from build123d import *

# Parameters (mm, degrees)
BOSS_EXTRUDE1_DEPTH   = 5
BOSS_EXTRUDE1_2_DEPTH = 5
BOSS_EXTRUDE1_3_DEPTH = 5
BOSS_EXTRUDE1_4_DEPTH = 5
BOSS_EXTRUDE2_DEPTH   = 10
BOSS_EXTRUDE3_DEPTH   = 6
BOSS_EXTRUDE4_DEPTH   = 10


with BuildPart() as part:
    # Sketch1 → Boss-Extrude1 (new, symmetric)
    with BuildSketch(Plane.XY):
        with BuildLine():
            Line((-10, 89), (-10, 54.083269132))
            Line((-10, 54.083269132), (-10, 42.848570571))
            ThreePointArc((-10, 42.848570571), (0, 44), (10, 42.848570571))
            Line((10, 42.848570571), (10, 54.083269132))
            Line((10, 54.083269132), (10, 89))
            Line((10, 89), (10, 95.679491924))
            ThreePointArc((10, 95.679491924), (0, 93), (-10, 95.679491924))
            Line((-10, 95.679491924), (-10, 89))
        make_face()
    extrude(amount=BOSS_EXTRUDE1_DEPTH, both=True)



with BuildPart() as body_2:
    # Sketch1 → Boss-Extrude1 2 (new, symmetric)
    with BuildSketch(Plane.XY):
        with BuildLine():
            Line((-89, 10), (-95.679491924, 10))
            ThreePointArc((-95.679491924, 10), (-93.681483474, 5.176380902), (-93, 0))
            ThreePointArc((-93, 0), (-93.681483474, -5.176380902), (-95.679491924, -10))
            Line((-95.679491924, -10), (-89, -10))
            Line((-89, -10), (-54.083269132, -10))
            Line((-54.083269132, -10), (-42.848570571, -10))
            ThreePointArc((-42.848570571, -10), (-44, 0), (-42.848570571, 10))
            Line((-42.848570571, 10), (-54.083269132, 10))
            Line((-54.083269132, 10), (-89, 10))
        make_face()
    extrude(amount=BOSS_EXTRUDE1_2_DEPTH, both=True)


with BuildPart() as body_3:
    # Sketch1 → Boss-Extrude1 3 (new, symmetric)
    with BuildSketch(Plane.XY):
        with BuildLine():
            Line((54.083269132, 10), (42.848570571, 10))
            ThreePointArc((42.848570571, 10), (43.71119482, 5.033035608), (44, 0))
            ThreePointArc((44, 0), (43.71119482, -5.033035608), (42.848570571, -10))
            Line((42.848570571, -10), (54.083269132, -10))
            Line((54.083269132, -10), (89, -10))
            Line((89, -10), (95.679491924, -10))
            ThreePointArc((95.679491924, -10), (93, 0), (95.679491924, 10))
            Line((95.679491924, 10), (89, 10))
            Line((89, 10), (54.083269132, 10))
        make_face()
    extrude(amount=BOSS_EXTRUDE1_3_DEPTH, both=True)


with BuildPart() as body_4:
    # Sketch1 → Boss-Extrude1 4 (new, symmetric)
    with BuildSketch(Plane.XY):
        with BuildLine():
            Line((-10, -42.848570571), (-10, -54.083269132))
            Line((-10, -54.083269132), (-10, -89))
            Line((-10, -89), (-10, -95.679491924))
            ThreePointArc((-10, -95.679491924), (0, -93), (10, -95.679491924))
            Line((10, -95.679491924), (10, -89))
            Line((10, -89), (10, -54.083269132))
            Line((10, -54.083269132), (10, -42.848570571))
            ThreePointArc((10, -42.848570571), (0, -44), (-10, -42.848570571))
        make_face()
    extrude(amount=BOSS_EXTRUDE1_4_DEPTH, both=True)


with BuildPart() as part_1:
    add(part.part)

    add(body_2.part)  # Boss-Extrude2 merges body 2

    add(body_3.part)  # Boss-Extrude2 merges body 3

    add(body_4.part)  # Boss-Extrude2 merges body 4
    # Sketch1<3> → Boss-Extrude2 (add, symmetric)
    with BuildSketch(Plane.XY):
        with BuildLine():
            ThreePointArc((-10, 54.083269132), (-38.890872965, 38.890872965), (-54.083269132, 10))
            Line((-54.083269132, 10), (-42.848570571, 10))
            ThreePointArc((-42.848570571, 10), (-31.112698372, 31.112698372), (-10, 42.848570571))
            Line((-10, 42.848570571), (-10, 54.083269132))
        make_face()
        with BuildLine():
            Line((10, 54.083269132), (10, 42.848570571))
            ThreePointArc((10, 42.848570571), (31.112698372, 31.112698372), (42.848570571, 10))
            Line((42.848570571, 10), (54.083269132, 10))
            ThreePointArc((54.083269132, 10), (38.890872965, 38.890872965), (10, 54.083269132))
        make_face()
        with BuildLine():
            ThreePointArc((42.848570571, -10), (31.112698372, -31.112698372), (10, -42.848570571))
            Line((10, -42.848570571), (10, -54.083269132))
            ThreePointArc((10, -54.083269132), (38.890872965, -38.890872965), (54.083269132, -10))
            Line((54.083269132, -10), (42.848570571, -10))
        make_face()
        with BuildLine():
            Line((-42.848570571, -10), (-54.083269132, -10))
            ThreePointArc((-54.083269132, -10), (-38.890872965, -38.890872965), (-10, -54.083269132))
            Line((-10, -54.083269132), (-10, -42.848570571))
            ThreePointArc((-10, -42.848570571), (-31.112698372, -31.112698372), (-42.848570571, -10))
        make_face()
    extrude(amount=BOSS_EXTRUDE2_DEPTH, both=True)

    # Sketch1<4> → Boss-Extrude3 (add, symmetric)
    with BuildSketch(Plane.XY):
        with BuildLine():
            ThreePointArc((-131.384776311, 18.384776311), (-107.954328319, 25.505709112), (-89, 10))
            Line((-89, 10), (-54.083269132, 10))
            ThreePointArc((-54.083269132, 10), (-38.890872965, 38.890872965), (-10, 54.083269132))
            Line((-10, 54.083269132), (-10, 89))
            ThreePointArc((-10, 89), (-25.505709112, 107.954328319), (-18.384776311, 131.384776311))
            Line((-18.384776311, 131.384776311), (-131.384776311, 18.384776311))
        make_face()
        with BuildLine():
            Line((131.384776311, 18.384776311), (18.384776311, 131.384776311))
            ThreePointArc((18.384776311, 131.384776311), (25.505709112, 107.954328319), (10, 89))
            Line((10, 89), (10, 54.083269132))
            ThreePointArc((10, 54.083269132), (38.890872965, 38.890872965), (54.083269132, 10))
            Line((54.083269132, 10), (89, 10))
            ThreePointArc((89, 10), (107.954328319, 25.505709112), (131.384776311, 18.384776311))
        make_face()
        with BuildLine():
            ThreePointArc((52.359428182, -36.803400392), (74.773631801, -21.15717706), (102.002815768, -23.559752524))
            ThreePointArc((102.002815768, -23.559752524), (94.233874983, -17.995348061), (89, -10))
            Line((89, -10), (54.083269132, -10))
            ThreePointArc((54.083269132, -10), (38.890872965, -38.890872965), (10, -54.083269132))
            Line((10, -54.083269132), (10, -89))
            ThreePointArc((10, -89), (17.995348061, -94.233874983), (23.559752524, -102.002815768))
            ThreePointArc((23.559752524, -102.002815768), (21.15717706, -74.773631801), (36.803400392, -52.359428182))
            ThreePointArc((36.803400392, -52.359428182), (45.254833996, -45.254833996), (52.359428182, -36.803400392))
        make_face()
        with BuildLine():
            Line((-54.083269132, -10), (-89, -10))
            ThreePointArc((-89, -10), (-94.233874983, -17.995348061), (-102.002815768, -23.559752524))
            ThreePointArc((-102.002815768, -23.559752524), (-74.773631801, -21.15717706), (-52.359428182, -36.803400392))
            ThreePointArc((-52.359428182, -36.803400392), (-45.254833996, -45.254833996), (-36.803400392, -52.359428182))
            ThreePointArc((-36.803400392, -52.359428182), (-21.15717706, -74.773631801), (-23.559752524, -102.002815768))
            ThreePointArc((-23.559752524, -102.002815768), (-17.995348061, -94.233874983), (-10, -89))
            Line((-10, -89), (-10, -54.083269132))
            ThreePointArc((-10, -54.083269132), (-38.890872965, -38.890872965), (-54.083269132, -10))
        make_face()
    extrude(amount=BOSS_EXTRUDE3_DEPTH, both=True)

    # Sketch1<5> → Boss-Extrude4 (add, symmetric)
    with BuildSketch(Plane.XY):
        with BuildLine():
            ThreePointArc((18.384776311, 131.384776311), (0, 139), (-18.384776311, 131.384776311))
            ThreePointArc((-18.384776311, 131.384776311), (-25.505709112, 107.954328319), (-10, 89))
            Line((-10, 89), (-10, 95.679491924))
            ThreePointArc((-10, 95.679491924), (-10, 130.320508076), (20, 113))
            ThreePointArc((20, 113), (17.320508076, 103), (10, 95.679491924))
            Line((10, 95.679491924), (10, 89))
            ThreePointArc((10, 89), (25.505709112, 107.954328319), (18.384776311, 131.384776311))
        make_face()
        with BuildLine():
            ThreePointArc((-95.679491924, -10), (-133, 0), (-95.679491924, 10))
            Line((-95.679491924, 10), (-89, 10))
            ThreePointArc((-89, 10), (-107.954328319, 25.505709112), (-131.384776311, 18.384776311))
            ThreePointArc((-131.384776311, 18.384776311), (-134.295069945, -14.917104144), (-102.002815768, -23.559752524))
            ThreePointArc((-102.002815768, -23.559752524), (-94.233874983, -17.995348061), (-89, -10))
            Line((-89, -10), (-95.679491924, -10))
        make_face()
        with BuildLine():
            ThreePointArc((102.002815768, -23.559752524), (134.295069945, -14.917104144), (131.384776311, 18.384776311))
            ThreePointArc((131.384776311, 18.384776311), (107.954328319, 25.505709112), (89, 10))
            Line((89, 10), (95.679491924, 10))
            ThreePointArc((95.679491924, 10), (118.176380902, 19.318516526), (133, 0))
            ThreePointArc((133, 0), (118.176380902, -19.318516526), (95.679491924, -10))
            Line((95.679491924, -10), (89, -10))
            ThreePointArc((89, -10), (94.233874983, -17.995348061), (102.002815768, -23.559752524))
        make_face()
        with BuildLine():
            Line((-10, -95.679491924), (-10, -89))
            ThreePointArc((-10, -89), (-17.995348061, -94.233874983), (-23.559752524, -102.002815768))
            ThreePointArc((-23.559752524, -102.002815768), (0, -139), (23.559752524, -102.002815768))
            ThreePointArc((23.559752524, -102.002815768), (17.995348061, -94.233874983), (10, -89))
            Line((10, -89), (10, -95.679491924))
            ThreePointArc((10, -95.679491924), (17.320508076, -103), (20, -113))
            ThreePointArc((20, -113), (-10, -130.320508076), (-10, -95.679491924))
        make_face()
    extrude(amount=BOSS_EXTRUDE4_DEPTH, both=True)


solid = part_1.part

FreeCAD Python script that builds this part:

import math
import FreeCAD as App
import Part
import Sketcher
from FreeCAD import Vector
Q = App.Units.Quantity

doc = App.newDocument("Part")
body = doc.addObject("PartDesign::Body", "Body")

sketch1 = body.newObject("Sketcher::SketchObject", "Sketch")
sketch1.AttachmentSupport = (doc.getObject("XY_Plane"), [""])
sketch1.MapMode = "FlatFace"
sketch1.addGeometry([
    Part.ArcOfCircle(Part.Circle(Vector(0, 0, 0), Vector(0, 0, 1), 44), math.radians(77), math.radians(103)),
    Part.LineSegment(Vector(10, 43, 0), Vector(10, 96, 0)),
    Part.ArcOfCircle(Part.Circle(Vector(0, 113, 0), Vector(0, 0, 1), 20), math.radians(-120), math.radians(-60)),
    Part.LineSegment(Vector(-10, 96, 0), Vector(-10, 43, 0)),
], False)
sketch1.addConstraint([
    Sketcher.Constraint("Coincident", 0, 1, 1, 1),
    Sketcher.Constraint("Coincident", 1, 2, 2, 2),
    Sketcher.Constraint("Coincident", 2, 1, 3, 1),
    Sketcher.Constraint("Coincident", 3, 2, 0, 2),
    Sketcher.Constraint("Vertical", 1),
    Sketcher.Constraint("Vertical", 3),
    Sketcher.Constraint("Coincident", 0, 3, -1, 1),
    Sketcher.Constraint("Symmetric", 1, 2, 2, 1, -2),
    Sketcher.Constraint("Radius", 0, Q("44 mm")),
    Sketcher.Constraint("Radius", 2, Q("20 mm")),
    Sketcher.Constraint("DistanceY", -1, 1, 2, 3, Q("113 mm")),
    Sketcher.Constraint("DistanceX", -1, 1, 0, 1, Q("10 mm")),
])
pad1 = body.newObject("PartDesign::Pad", "Pad")
pad1.Profile = sketch1
pad1.Length = 10
pad1.Midplane = True
body2 = doc.addObject("PartDesign::Body", "Body001")

sketch2 = body2.newObject("Sketcher::SketchObject", "Sketch001")
sketch2.AttachmentSupport = (doc.getObject("XY_Plane001"), [""])
sketch2.MapMode = "FlatFace"
sketch2.addGeometry([
    Part.ArcOfCircle(Part.Circle(Vector(-113, 0, 0), Vector(0, 0, 1), 20), math.radians(0), math.radians(30)),
    Part.ArcOfCircle(Part.Circle(Vector(-113, 0, 0), Vector(0, 0, 1), 20), math.radians(-30), math.radians(0)),
    Part.LineSegment(Vector(-96, -10, 0), Vector(-43, -10, 0)),
    Part.ArcOfCircle(Part.Circle(Vector(0, 0, 0), Vector(0, 0, 1), 44), math.radians(167), math.radians(193)),
    Part.LineSegment(Vector(-43, 10, 0), Vector(-96, 10, 0)),
], False)
sketch2.addConstraint([
    Sketcher.Constraint("Tangent", 0, 1, 1, 2),
    Sketcher.Constraint("Coincident", 1, 1, 2, 1),
    Sketcher.Constraint("Coincident", 2, 2, 3, 2),
    Sketcher.Constraint("Coincident", 3, 1, 4, 1),
    Sketcher.Constraint("Coincident", 4, 2, 0, 2),
    Sketcher.Constraint("Horizontal", 2),
    Sketcher.Constraint("Horizontal", 4),
    Sketcher.Constraint("Coincident", 3, 3, -1, 1),
    Sketcher.Constraint("Equal", 0, 1),
    Sketcher.Constraint("Symmetric", 1, 1, 4, 2, -1),
    Sketcher.Constraint("PointOnObject", 0, 1, -1),
    Sketcher.Constraint("Radius", 0, Q("20 mm")),
    Sketcher.Constraint("Radius", 3, Q("44 mm")),
    Sketcher.Constraint("DistanceX", 0, 3, -1, 1, Q("113 mm")),
    Sketcher.Constraint("DistanceY", 1, 1, -1, 1, Q("10 mm")),
])
pad2 = body2.newObject("PartDesign::Pad", "Pad001")
pad2.Profile = sketch2
pad2.Length = 10
pad2.Midplane = True
body3 = doc.addObject("PartDesign::Body", "Body002")

sketch3 = body3.newObject("Sketcher::SketchObject", "Sketch002")
sketch3.AttachmentSupport = (doc.getObject("XY_Plane002"), [""])
sketch3.MapMode = "FlatFace"
sketch3.addGeometry([
    Part.ArcOfCircle(Part.Circle(Vector(0, 0, 0), Vector(0, 0, 1), 44), math.radians(0), math.radians(13.14)),
    Part.ArcOfCircle(Part.Circle(Vector(0, 0, 0), Vector(0, 0, 1), 44), math.radians(-13.14), math.radians(0)),
    Part.LineSegment(Vector(43, -10, 0), Vector(96, -10, 0)),
    Part.ArcOfCircle(Part.Circle(Vector(113, 0, 0), Vector(0, 0, 1), 20), math.radians(150), math.radians(210)),
    Part.LineSegment(Vector(96, 10, 0), Vector(43, 10, 0)),
], False)
sketch3.addConstraint([
    Sketcher.Constraint("Tangent", 0, 1, 1, 2),
    Sketcher.Constraint("Coincident", 1, 1, 2, 1),
    Sketcher.Constraint("Coincident", 2, 2, 3, 2),
    Sketcher.Constraint("Coincident", 3, 1, 4, 1),
    Sketcher.Constraint("Coincident", 4, 2, 0, 2),
    Sketcher.Constraint("Horizontal", 2),
    Sketcher.Constraint("Horizontal", 4),
    Sketcher.Constraint("Coincident", 0, 3, -1, 1),
    Sketcher.Constraint("Equal", 0, 1),
    Sketcher.Constraint("Symmetric", 2, 2, 3, 1, -1),
    Sketcher.Constraint("PointOnObject", 0, 1, -1),
    Sketcher.Constraint("Radius", 0, Q("44 mm")),
    Sketcher.Constraint("Radius", 3, Q("20 mm")),
    Sketcher.Constraint("DistanceX", -1, 1, 3, 3, Q("113 mm")),
    Sketcher.Constraint("DistanceY", 1, 1, -1, 1, Q("10 mm")),
])
pad3 = body3.newObject("PartDesign::Pad", "Pad002")
pad3.Profile = sketch3
pad3.Length = 10
pad3.Midplane = True
body4 = doc.addObject("PartDesign::Body", "Body003")

sketch4 = body4.newObject("Sketcher::SketchObject", "Sketch003")
sketch4.AttachmentSupport = (doc.getObject("XY_Plane003"), [""])
sketch4.MapMode = "FlatFace"
sketch4.addGeometry([
    Part.LineSegment(Vector(-10, -43, 0), Vector(-10, -96, 0)),
    Part.ArcOfCircle(Part.Circle(Vector(0, -113, 0), Vector(0, 0, 1), 20), math.radians(60), math.radians(120)),
    Part.LineSegment(Vector(10, -96, 0), Vector(10, -43, 0)),
    Part.ArcOfCircle(Part.Circle(Vector(0, 0, 0), Vector(0, 0, 1), 44), math.radians(-103), math.radians(-77)),
], False)
sketch4.addConstraint([
    Sketcher.Constraint("Coincident", 0, 2, 1, 2),
    Sketcher.Constraint("Coincident", 1, 1, 2, 1),
    Sketcher.Constraint("Coincident", 2, 2, 3, 2),
    Sketcher.Constraint("Coincident", 3, 1, 0, 1),
    Sketcher.Constraint("Vertical", 0),
    Sketcher.Constraint("Vertical", 2),
    Sketcher.Constraint("Coincident", 3, 3, -1, 1),
    Sketcher.Constraint("Symmetric", 0, 2, 1, 1, -2),
    Sketcher.Constraint("Radius", 1, Q("20 mm")),
    Sketcher.Constraint("Radius", 3, Q("44 mm")),
    Sketcher.Constraint("DistanceY", 1, 3, -1, 1, Q("113 mm")),
    Sketcher.Constraint("DistanceX", 0, 2, -1, 1, Q("10 mm")),
])
pad4 = body4.newObject("PartDesign::Pad", "Pad003")
pad4.Profile = sketch4
pad4.Length = 10
pad4.Midplane = True
body.AllowCompound = True
doc.recompute()

boolean = body.newObject("PartDesign::Boolean", "Boolean")
boolean.Type = "Fuse"
boolean.addObjects([body2])
doc.recompute()

boolean2 = body.newObject("PartDesign::Boolean", "Boolean001")
boolean2.Type = "Fuse"
boolean2.addObjects([body3])
doc.recompute()

boolean3 = body.newObject("PartDesign::Boolean", "Boolean002")
boolean3.Type = "Fuse"
boolean3.addObjects([body4])

sketch5 = body.newObject("Sketcher::SketchObject", "Sketch004")
sketch5.AttachmentSupport = (doc.getObject("XY_Plane"), [""])
sketch5.MapMode = "FlatFace"
sketch5.addGeometry([
    Part.ArcOfCircle(Part.Circle(Vector(0, 0, 0), Vector(0, 0, 1), 55), math.radians(100), math.radians(170)),
    Part.LineSegment(Vector(-54, 10, 0), Vector(-43, 10, 0)),
    Part.ArcOfCircle(Part.Circle(Vector(0, 0, 0), Vector(0, 0, 1), 44), math.radians(103), math.radians(167)),
    Part.LineSegment(Vector(-10, 43, 0), Vector(-10, 54, 0)),
    Part.LineSegment(Vector(10, 54, 0), Vector(10, 43, 0)),
    Part.ArcOfCircle(Part.Circle(Vector(0, 0, 0), Vector(0, 0, 1), 44), math.radians(13), math.radians(77)),
    Part.LineSegment(Vector(43, 10, 0), Vector(54, 10, 0)),
    Part.ArcOfCircle(Part.Circle(Vector(0, 0, 0), Vector(0, 0, 1), 55), math.radians(10), math.radians(80)),
    Part.ArcOfCircle(Part.Circle(Vector(0, 0, 0), Vector(0, 0, 1), 44), math.radians(-77), math.radians(-13)),
    Part.LineSegment(Vector(10, -43, 0), Vector(10, -54, 0)),
    Part.ArcOfCircle(Part.Circle(Vector(0, 0, 0), Vector(0, 0, 1), 55), math.radians(-80), math.radians(-10)),
    Part.LineSegment(Vector(54, -10, 0), Vector(43, -10, 0)),
    Part.LineSegment(Vector(-43, -10, 0), Vector(-54, -10, 0)),
    Part.ArcOfCircle(Part.Circle(Vector(0, 0, 0), Vector(0, 0, 1), 55), math.radians(-170), math.radians(-100)),
    Part.LineSegment(Vector(-10, -54, 0), Vector(-10, -43, 0)),
    Part.ArcOfCircle(Part.Circle(Vector(0, 0, 0), Vector(0, 0, 1), 44), math.radians(-167), math.radians(-103)),
], False)
sketch5.addConstraint([
    Sketcher.Constraint("Coincident", 0, 2, 1, 1),
    Sketcher.Constraint("Coincident", 1, 2, 2, 2),
    Sketcher.Constraint("Coincident", 2, 1, 3, 1),
    Sketcher.Constraint("Coincident", 3, 2, 0, 1),
    Sketcher.Constraint("Coincident", 4, 2, 5, 2),
    Sketcher.Constraint("Coincident", 5, 1, 6, 1),
    Sketcher.Constraint("Coincident", 6, 2, 7, 1),
    Sketcher.Constraint("Coincident", 7, 2, 4, 1),
    Sketcher.Constraint("Coincident", 8, 1, 9, 1),
    Sketcher.Constraint("Coincident", 9, 2, 10, 1),
    Sketcher.Constraint("Coincident", 10, 2, 11, 1),
    Sketcher.Constraint("Coincident", 11, 2, 8, 2),
    Sketcher.Constraint("Coincident", 12, 2, 13, 1),
    Sketcher.Constraint("Coincident", 13, 2, 14, 1),
    Sketcher.Constraint("Coincident", 14, 2, 15, 2),
    Sketcher.Constraint("Coincident", 15, 1, 12, 1),
    Sketcher.Constraint("Horizontal", 1),
    Sketcher.Constraint("Vertical", 3),
    Sketcher.Constraint("Vertical", 4),
    Sketcher.Constraint("Horizontal", 6),
    Sketcher.Constraint("Vertical", 9),
    Sketcher.Constraint("Horizontal", 11),
    Sketcher.Constraint("Horizontal", 12),
    Sketcher.Constraint("Vertical", 14),
    Sketcher.Constraint("Coincident", 0, 3, -1, 1),
    Sketcher.Constraint("Coincident", 2, 3, -1, 1),
    Sketcher.Constraint("Coincident", 5, 3, -1, 1),
    Sketcher.Constraint("Coincident", 7, 3, -1, 1),
    Sketcher.Constraint("Coincident", 8, 3, -1, 1),
    Sketcher.Constraint("Coincident", 10, 3, -1, 1),
    Sketcher.Constraint("Coincident", 13, 3, -1, 1),
    Sketcher.Constraint("Coincident", 15, 3, -1, 1),
    Sketcher.Constraint("Equal", 2, 5),
    Sketcher.Constraint("Equal", 0, 7),
    Sketcher.Constraint("Equal", 5, 8),
    Sketcher.Constraint("Equal", 7, 10),
    Sketcher.Constraint("Equal", 10, 13),
    Sketcher.Constraint("Equal", 8, 15),
    Sketcher.Constraint("Horizontal", 2, 1, 4, 2),
    Sketcher.Constraint("Horizontal", 1, 2, 5, 1),
    Sketcher.Constraint("Horizontal", 11, 2, 12, 2),
    Sketcher.Constraint("Horizontal", 9, 2, 13, 2),
    Sketcher.Constraint("Vertical", 7, 2, 8, 1),
    Sketcher.Constraint("Vertical", 6, 2, 10, 2),
    Sketcher.Constraint("Equal", 12, 3),
    Sketcher.Constraint("Radius", 0, Q("55 mm")),
    Sketcher.Constraint("Radius", 2, Q("44 mm")),
    Sketcher.Constraint("DistanceY", -1, 1, 0, 2, Q("10 mm")),
])
pad5 = body.newObject("PartDesign::Pad", "Pad004")
pad5.Profile = sketch5
pad5.Length = 20
pad5.Midplane = True

sketch6 = body.newObject("Sketcher::SketchObject", "Sketch005")
sketch6.AttachmentSupport = (doc.getObject("XY_Plane"), [""])
sketch6.MapMode = "FlatFace"
sketch6.addGeometry([
    Part.ArcOfCircle(Part.Circle(Vector(-113, 0, 0), Vector(0, 0, 1), 26), math.radians(23), math.radians(135)),
    Part.LineSegment(Vector(-89, 10, 0), Vector(-54, 10, 0)),
    Part.ArcOfCircle(Part.Circle(Vector(0, 0, 0), Vector(0, 0, 1), 55), math.radians(100), math.radians(170)),
    Part.LineSegment(Vector(-10, 54, 0), Vector(-10, 89, 0)),
    Part.ArcOfCircle(Part.Circle(Vector(0, 113, 0), Vector(0, 0, 1), 26), math.radians(135), math.radians(247)),
    Part.LineSegment(Vector(-18, 131, 0), Vector(-131, 18, 0)),
    Part.LineSegment(Vector(131, 18, 0), Vector(18, 131, 0)),
    Part.ArcOfCircle(Part.Circle(Vector(0, 113, 0), Vector(0, 0, 1), 26), math.radians(-67), math.radians(45)),
    Part.LineSegment(Vector(10, 89, 0), Vector(10, 54, 0)),
    Part.ArcOfCircle(Part.Circle(Vector(0, 0, 0), Vector(0, 0, 1), 55), math.radians(10), math.radians(80)),
    Part.LineSegment(Vector(54, 10, 0), Vector(89, 10, 0)),
    Part.ArcOfCircle(Part.Circle(Vector(113, 0, 0), Vector(0, 0, 1), 26), math.radians(45), math.radians(157)),
    Part.ArcOfCircle(Part.Circle(Vector(85, -60, 0), Vector(0, 0, 1), 40), math.radians(65), math.radians(145)),
    Part.ArcOfCircle(Part.Circle(Vector(113, 0, 0), Vector(0, 0, 1), 26), math.radians(-157), math.radians(-115)),
    Part.LineSegment(Vector(89, -10, 0), Vector(54, -10, 0)),
    Part.ArcOfCircle(Part.Circle(Vector(0, 0, 0), Vector(0, 0, 1), 55), math.radians(-80), math.radians(-10)),
    Part.LineSegment(Vector(10, -54, 0), Vector(10, -89, 0)),
    Part.ArcOfCircle(Part.Circle(Vector(0, -113, 0), Vector(0, 0, 1), 26), math.radians(25), math.radians(67)),
    Part.ArcOfCircle(Part.Circle(Vector(60, -85, 0), Vector(0, 0, 1), 40), math.radians(125), math.radians(205)),
    Part.ArcOfCircle(Part.Circle(Vector(0, 0, 0), Vector(0, 0, 1), 64), math.radians(-54.9), math.radians(-35.1)),
    Part.LineSegment(Vector(-54, -10, 0), Vector(-89, -10, 0)),
    Part.ArcOfCircle(Part.Circle(Vector(-113, 0, 0), Vector(0, 0, 1), 26), math.radians(-65), math.radians(-23)),
    Part.ArcOfCircle(Part.Circle(Vector(-85, -60, 0), Vector(0, 0, 1), 40), math.radians(35), math.radians(115)),
    Part.ArcOfCircle(Part.Circle(Vector(0, 0, 0), Vector(0, 0, 1), 64), math.radians(-144.9), math.radians(-125.1)),
    Part.ArcOfCircle(Part.Circle(Vector(-60, -85, 0), Vector(0, 0, 1), 40), math.radians(-25), math.radians(55)),
    Part.ArcOfCircle(Part.Circle(Vector(0, -113, 0), Vector(0, 0, 1), 26), math.radians(113), math.radians(155)),
    Part.LineSegment(Vector(-10, -89, 0), Vector(-10, -54, 0)),
    Part.ArcOfCircle(Part.Circle(Vector(0, 0, 0), Vector(0, 0, 1), 55), math.radians(-170), math.radians(-100)),
], False)
sketch6.addConstraint([
    Sketcher.Constraint("Coincident", 0, 1, 1, 1),
    Sketcher.Constraint("Coincident", 1, 2, 2, 2),
    Sketcher.Constraint("Coincident", 2, 1, 3, 1),
    Sketcher.Constraint("Coincident", 3, 2, 4, 2),
    Sketcher.Constraint("Tangent", 4, 1, 5, 1),
    Sketcher.Constraint("Tangent", 5, 2, 0, 2),
    Sketcher.Constraint("Tangent", 6, 2, 7, 2),
    Sketcher.Constraint("Coincident", 7, 1, 8, 1),
    Sketcher.Constraint("Coincident", 8, 2, 9, 2),
    Sketcher.Constraint("Coincident", 9, 1, 10, 1),
    Sketcher.Constraint("Coincident", 10, 2, 11, 2),
    Sketcher.Constraint("Tangent", 11, 1, 6, 1),
    Sketcher.Constraint("Tangent", 12, 1, 13, 2),
    Sketcher.Constraint("Coincident", 13, 1, 14, 1),
    Sketcher.Constraint("Coincident", 14, 2, 15, 2),
    Sketcher.Constraint("Coincident", 15, 1, 16, 1),
    Sketcher.Constraint("Coincident", 16, 2, 17, 2),
    Sketcher.Constraint("Tangent", 17, 1, 18, 2),
    Sketcher.Constraint("Tangent", 18, 1, 19, 1),
    Sketcher.Constraint("Tangent", 19, 2, 12, 2),
    Sketcher.Constraint("Coincident", 20, 2, 21, 2),
    Sketcher.Constraint("Tangent", 21, 1, 22, 2),
    Sketcher.Constraint("Tangent", 22, 1, 23, 1),
    Sketcher.Constraint("Tangent", 23, 2, 24, 2),
    Sketcher.Constraint("Tangent", 24, 1, 25, 2),
    Sketcher.Constraint("Coincident", 25, 1, 26, 1),
    Sketcher.Constraint("Coincident", 26, 2, 27, 2),
    Sketcher.Constraint("Coincident", 27, 1, 20, 1),
    Sketcher.Constraint("Horizontal", 1),
    Sketcher.Constraint("Vertical", 3),
    Sketcher.Constraint("Vertical", 8),
    Sketcher.Constraint("Horizontal", 10),
    Sketcher.Constraint("Horizontal", 14),
    Sketcher.Constraint("Vertical", 16),
    Sketcher.Constraint("Horizontal", 20),
    Sketcher.Constraint("Vertical", 26),
    Sketcher.Constraint("Coincident", 2, 3, -1, 1),
    Sketcher.Constraint("Coincident", 9, 3, -1, 1),
    Sketcher.Constraint("Coincident", 15, 3, -1, 1),
    Sketcher.Constraint("Coincident", 19, 3, -1, 1),
    Sketcher.Constraint("Coincident", 23, 3, -1, 1),
    Sketcher.Constraint("Coincident", 27, 3, -1, 1),
    Sketcher.Constraint("Coincident", 7, 3, 4, 3),
    Sketcher.Constraint("Coincident", 13, 3, 11, 3),
    Sketcher.Constraint("Coincident", 21, 3, 0, 3),
    Sketcher.Constraint("Coincident", 25, 3, 17, 3),
    Sketcher.Constraint("Equal", 0, 4),
    Sketcher.Constraint("Equal", 4, 7),
    Sketcher.Constraint("Equal", 2, 9),
    Sketcher.Constraint("Equal", 7, 11),
    Sketcher.Constraint("Equal", 11, 13),
    Sketcher.Constraint("Equal", 9, 15),
    Sketcher.Constraint("Equal", 13, 17),
    Sketcher.Constraint("Equal", 12, 18),
    Sketcher.Constraint("Equal", 17, 21),
    Sketcher.Constraint("Equal", 18, 22),
    Sketcher.Constraint("Equal", 19, 23),
    Sketcher.Constraint("Equal", 22, 24),
    Sketcher.Constraint("Equal", 21, 25),
    Sketcher.Constraint("Equal", 15, 27),
    Sketcher.Constraint("Symmetric", 0, 3, 11, 3, -1, 1),
    Sketcher.Constraint("Symmetric", 4, 3, 17, 3, -1, 1),
    Sketcher.Constraint("Symmetric", 4, 1, 6, 2, -2),
    Sketcher.Constraint("Perpendicular", 5, 6),
    Sketcher.Constraint("Horizontal", 3, 2, 7, 1),
    Sketcher.Constraint("Horizontal", 1, 2, 9, 1),
    Sketcher.Constraint("Horizontal", 14, 2, 20, 2),
    Sketcher.Constraint("Horizontal", 16, 2, 25, 1),
    Sketcher.Constraint("Vertical", 10, 2, 13, 1),
    Sketcher.Constraint("Vertical", 8, 2, 15, 1),
    Sketcher.Constraint("Equal", 20, 3),
    Sketcher.Constraint("Radius", 0, Q("26 mm")),
    Sketcher.Constraint("Radius", 2, Q("55 mm")),
    Sketcher.Constraint("Radius", 12, Q("40 mm")),
    Sketcher.Constraint("Radius", 19, Q("64 mm")),
    Sketcher.Constraint("DistanceX", 0, 3, -1, 1, Q("113 mm")),
    Sketcher.Constraint("DistanceX", 0, 1, -1, 1, Q("89 mm")),
])
pad6 = body.newObject("PartDesign::Pad", "Pad005")
pad6.Profile = sketch6
pad6.Length = 12
pad6.Midplane = True

sketch7 = body.newObject("Sketcher::SketchObject", "Sketch006")
sketch7.AttachmentSupport = (doc.getObject("XY_Plane"), [""])
sketch7.MapMode = "FlatFace"
sketch7.addGeometry([
    Part.ArcOfCircle(Part.Circle(Vector(0, 113, 0), Vector(0, 0, 1), 26), math.radians(45), math.radians(135)),
    Part.ArcOfCircle(Part.Circle(Vector(0, 113, 0), Vector(0, 0, 1), 26), math.radians(135), math.radians(247)),
    Part.LineSegment(Vector(-10, 89, 0), Vector(-10, 96, 0)),
    Part.ArcOfCircle(Part.Circle(Vector(0, 113, 0), Vector(0, 0, 1), 20), math.radians(0), math.radians(240)),
    Part.ArcOfCircle(Part.Circle(Vector(0, 113, 0), Vector(0, 0, 1), 20), math.radians(-60), math.radians(0)),
    Part.LineSegment(Vector(10, 96, 0), Vector(10, 89, 0)),
    Part.ArcOfCircle(Part.Circle(Vector(0, 113, 0), Vector(0, 0, 1), 26), math.radians(-67), math.radians(45)),
    Part.ArcOfCircle(Part.Circle(Vector(-113, 0, 0), Vector(0, 0, 1), 20), math.radians(30), math.radians(330)),
    Part.LineSegment(Vector(-96, 10, 0), Vector(-89, 10, 0)),
    Part.ArcOfCircle(Part.Circle(Vector(-113, 0, 0), Vector(0, 0, 1), 26), math.radians(23), math.radians(135)),
    Part.ArcOfCircle(Part.Circle(Vector(-113, 0, 0), Vector(0, 0, 1), 26), math.radians(135), math.radians(295)),
    Part.ArcOfCircle(Part.Circle(Vector(-113, 0, 0), Vector(0, 0, 1), 26), math.radians(-65), math.radians(-23)),
    Part.LineSegment(Vector(-89, -10, 0), Vector(-96, -10, 0)),
    Part.ArcOfCircle(Part.Circle(Vector(113, 0, 0), Vector(0, 0, 1), 26), math.radians(-115), math.radians(45)),
    Part.ArcOfCircle(Part.Circle(Vector(113, 0, 0), Vector(0, 0, 1), 26), math.radians(45), math.radians(157)),
    Part.LineSegment(Vector(89, 10, 0), Vector(96, 10, 0)),
    Part.ArcOfCircle(Part.Circle(Vector(113, 0, 0), Vector(0, 0, 1), 20), math.radians(0), math.radians(150)),
    Part.ArcOfCircle(Part.Circle(Vector(113, 0, 0), Vector(0, 0, 1), 20), math.radians(-150), math.radians(0)),
    Part.LineSegment(Vector(96, -10, 0), Vector(89, -10, 0)),
    Part.ArcOfCircle(Part.Circle(Vector(113, 0, 0), Vector(0, 0, 1), 26), math.radians(-157), math.radians(-115)),
    Part.LineSegment(Vector(-10, -96, 0), Vector(-10, -89, 0)),
    Part.ArcOfCircle(Part.Circle(Vector(0, -113, 0), Vector(0, 0, 1), 26), math.radians(113), math.radians(155)),
    Part.ArcOfCircle(Part.Circle(Vector(0, -113, 0), Vector(0, 0, 1), 26), math.radians(155), math.radians(385)),
    Part.ArcOfCircle(Part.Circle(Vector(0, -113, 0), Vector(0, 0, 1), 26), math.radians(25), math.radians(67)),
    Part.LineSegment(Vector(10, -89, 0), Vector(10, -96, 0)),
    Part.ArcOfCircle(Part.Circle(Vector(0, -113, 0), Vector(0, 0, 1), 20), math.radians(0), math.radians(60)),
    Part.ArcOfCircle(Part.Circle(Vector(0, -113, 0), Vector(0, 0, 1), 20), math.radians(120), math.radians(360)),
], False)
sketch7.addConstraint([
    Sketcher.Constraint("Tangent", 0, 2, 1, 1),
    Sketcher.Constraint("Coincident", 1, 2, 2, 1),
    Sketcher.Constraint("Coincident", 2, 2, 3, 2),
    Sketcher.Constraint("Tangent", 3, 1, 4, 2),
    Sketcher.Constraint("Coincident", 4, 1, 5, 1),
    Sketcher.Constraint("Coincident", 5, 2, 6, 1),
    Sketcher.Constraint("Tangent", 6, 2, 0, 1),
    Sketcher.Constraint("Coincident", 7, 1, 8, 1),
    Sketcher.Constraint("Coincident", 8, 2, 9, 1),
    Sketcher.Constraint("Tangent", 9, 2, 10, 1),
    Sketcher.Constraint("Tangent", 10, 2, 11, 1),
    Sketcher.Constraint("Coincident", 11, 2, 12, 1),
    Sketcher.Constraint("Coincident", 12, 2, 7, 2),
    Sketcher.Constraint("Tangent", 13, 2, 14, 1),
    Sketcher.Constraint("Coincident", 14, 2, 15, 1),
    Sketcher.Constraint("Coincident", 15, 2, 16, 2),
    Sketcher.Constraint("Tangent", 16, 1, 17, 2),
    Sketcher.Constraint("Coincident", 17, 1, 18, 1),
    Sketcher.Constraint("Coincident", 18, 2, 19, 1),
    Sketcher.Constraint("Tangent", 19, 2, 13, 1),
    Sketcher.Constraint("Coincident", 20, 2, 21, 1),
    Sketcher.Constraint("Tangent", 21, 2, 22, 1),
    Sketcher.Constraint("Tangent", 22, 2, 23, 1),
    Sketcher.Constraint("Coincident", 23, 2, 24, 1),
    Sketcher.Constraint("Coincident", 24, 2, 25, 2),
    Sketcher.Constraint("Tangent", 25, 1, 26, 2),
    Sketcher.Constraint("Coincident", 26, 1, 20, 1),
    Sketcher.Constraint("Vertical", 2),
    Sketcher.Constraint("Vertical", 5),
    Sketcher.Constraint("Horizontal", 8),
    Sketcher.Constraint("Horizontal", 12),
    Sketcher.Constraint("Horizontal", 15),
    Sketcher.Constraint("Horizontal", 18),
    Sketcher.Constraint("Vertical", 20),
    Sketcher.Constraint("Vertical", 24),
    Sketcher.Constraint("Coincident", 3, 3, 0, 3),
    Sketcher.Constraint("Coincident", 9, 3, 7, 3),
    Sketcher.Constraint("Coincident", 11, 3, 7, 3),
    Sketcher.Constraint("Coincident", 16, 3, 13, 3),
    Sketcher.Constraint("Coincident", 23, 3, 21, 3),
    Sketcher.Constraint("Coincident", 25, 3, 21, 3),
    Sketcher.Constraint("Equal", 0, 1),
    Sketcher.Constraint("Equal", 3, 4),
    Sketcher.Constraint("Equal", 1, 6),
    Sketcher.Constraint("Equal", 4, 7),
    Sketcher.Constraint("Equal", 6, 9),
    Sketcher.Constraint("Equal", 11, 13),
    Sketcher.Constraint("Equal", 13, 14),
    Sketcher.Constraint("Equal", 7, 16),
    Sketcher.Constraint("Equal", 16, 17),
    Sketcher.Constraint("Equal", 14, 19),
    Sketcher.Constraint("Equal", 19, 21),
    Sketcher.Constraint("Equal", 17, 25),
    Sketcher.Constraint("Equal", 25, 26),
    Sketcher.Constraint("Symmetric", 7, 3, 13, 3, -1, 1),
    Sketcher.Constraint("Symmetric", 0, 3, 21, 3, -1, 1),
    Sketcher.Constraint("Symmetric", 2, 2, 4, 1, -2),
    Sketcher.Constraint("Symmetric", 9, 2, 13, 2, -2),
    Sketcher.Constraint("PointOnObject", 16, 1, -1),
    Sketcher.Constraint("Horizontal", 6, 3, 3, 1),
    Sketcher.Constraint("Horizontal", 0, 2, 6, 2),
    Sketcher.Constraint("Horizontal", 8, 2, 14, 2),
    Sketcher.Constraint("Horizontal", 12, 2, 17, 1),
    Sketcher.Constraint("Horizontal", 10, 2, 19, 2),
    Sketcher.Constraint("Horizontal", 21, 2, 22, 2),
    Sketcher.Constraint("Horizontal", 20, 2, 23, 2),
    Sketcher.Constraint("Horizontal", 26, 3, 25, 1),
    Sketcher.Constraint("Vertical", 8, 2, 11, 2),
    Sketcher.Constraint("Vertical", 2, 2, 20, 2),
    Sketcher.Constraint("Equal", 18, 2),
    Sketcher.Constraint("Radius", 0, Q("26 mm")),
    Sketcher.Constraint("Radius", 3, Q("20 mm")),
    Sketcher.Constraint("DistanceY", -1, 1, 0, 3, Q("113 mm")),
    Sketcher.Constraint("DistanceX", 7, 3, -1, 1, Q("113 mm")),
    Sketcher.Constraint("DistanceX", 1, 2, -1, 1, Q("10 mm")),
    Sketcher.Constraint("DistanceX", 0, 2, -1, 1, Q("18.384776 mm")),
    Sketcher.Constraint("DistanceX", 9, 2, -1, 1, Q("131.384776 mm")),
    Sketcher.Constraint("DistanceX", 10, 2, -1, 1, Q("102.002816 mm")),
    Sketcher.Constraint("DistanceX", 21, 2, -1, 1, Q("23.559753 mm")),
])
pad7 = body.newObject("PartDesign::Pad", "Pad006")
pad7.Profile = sketch7
pad7.Length = 20
pad7.Midplane = True

doc.recompute()
